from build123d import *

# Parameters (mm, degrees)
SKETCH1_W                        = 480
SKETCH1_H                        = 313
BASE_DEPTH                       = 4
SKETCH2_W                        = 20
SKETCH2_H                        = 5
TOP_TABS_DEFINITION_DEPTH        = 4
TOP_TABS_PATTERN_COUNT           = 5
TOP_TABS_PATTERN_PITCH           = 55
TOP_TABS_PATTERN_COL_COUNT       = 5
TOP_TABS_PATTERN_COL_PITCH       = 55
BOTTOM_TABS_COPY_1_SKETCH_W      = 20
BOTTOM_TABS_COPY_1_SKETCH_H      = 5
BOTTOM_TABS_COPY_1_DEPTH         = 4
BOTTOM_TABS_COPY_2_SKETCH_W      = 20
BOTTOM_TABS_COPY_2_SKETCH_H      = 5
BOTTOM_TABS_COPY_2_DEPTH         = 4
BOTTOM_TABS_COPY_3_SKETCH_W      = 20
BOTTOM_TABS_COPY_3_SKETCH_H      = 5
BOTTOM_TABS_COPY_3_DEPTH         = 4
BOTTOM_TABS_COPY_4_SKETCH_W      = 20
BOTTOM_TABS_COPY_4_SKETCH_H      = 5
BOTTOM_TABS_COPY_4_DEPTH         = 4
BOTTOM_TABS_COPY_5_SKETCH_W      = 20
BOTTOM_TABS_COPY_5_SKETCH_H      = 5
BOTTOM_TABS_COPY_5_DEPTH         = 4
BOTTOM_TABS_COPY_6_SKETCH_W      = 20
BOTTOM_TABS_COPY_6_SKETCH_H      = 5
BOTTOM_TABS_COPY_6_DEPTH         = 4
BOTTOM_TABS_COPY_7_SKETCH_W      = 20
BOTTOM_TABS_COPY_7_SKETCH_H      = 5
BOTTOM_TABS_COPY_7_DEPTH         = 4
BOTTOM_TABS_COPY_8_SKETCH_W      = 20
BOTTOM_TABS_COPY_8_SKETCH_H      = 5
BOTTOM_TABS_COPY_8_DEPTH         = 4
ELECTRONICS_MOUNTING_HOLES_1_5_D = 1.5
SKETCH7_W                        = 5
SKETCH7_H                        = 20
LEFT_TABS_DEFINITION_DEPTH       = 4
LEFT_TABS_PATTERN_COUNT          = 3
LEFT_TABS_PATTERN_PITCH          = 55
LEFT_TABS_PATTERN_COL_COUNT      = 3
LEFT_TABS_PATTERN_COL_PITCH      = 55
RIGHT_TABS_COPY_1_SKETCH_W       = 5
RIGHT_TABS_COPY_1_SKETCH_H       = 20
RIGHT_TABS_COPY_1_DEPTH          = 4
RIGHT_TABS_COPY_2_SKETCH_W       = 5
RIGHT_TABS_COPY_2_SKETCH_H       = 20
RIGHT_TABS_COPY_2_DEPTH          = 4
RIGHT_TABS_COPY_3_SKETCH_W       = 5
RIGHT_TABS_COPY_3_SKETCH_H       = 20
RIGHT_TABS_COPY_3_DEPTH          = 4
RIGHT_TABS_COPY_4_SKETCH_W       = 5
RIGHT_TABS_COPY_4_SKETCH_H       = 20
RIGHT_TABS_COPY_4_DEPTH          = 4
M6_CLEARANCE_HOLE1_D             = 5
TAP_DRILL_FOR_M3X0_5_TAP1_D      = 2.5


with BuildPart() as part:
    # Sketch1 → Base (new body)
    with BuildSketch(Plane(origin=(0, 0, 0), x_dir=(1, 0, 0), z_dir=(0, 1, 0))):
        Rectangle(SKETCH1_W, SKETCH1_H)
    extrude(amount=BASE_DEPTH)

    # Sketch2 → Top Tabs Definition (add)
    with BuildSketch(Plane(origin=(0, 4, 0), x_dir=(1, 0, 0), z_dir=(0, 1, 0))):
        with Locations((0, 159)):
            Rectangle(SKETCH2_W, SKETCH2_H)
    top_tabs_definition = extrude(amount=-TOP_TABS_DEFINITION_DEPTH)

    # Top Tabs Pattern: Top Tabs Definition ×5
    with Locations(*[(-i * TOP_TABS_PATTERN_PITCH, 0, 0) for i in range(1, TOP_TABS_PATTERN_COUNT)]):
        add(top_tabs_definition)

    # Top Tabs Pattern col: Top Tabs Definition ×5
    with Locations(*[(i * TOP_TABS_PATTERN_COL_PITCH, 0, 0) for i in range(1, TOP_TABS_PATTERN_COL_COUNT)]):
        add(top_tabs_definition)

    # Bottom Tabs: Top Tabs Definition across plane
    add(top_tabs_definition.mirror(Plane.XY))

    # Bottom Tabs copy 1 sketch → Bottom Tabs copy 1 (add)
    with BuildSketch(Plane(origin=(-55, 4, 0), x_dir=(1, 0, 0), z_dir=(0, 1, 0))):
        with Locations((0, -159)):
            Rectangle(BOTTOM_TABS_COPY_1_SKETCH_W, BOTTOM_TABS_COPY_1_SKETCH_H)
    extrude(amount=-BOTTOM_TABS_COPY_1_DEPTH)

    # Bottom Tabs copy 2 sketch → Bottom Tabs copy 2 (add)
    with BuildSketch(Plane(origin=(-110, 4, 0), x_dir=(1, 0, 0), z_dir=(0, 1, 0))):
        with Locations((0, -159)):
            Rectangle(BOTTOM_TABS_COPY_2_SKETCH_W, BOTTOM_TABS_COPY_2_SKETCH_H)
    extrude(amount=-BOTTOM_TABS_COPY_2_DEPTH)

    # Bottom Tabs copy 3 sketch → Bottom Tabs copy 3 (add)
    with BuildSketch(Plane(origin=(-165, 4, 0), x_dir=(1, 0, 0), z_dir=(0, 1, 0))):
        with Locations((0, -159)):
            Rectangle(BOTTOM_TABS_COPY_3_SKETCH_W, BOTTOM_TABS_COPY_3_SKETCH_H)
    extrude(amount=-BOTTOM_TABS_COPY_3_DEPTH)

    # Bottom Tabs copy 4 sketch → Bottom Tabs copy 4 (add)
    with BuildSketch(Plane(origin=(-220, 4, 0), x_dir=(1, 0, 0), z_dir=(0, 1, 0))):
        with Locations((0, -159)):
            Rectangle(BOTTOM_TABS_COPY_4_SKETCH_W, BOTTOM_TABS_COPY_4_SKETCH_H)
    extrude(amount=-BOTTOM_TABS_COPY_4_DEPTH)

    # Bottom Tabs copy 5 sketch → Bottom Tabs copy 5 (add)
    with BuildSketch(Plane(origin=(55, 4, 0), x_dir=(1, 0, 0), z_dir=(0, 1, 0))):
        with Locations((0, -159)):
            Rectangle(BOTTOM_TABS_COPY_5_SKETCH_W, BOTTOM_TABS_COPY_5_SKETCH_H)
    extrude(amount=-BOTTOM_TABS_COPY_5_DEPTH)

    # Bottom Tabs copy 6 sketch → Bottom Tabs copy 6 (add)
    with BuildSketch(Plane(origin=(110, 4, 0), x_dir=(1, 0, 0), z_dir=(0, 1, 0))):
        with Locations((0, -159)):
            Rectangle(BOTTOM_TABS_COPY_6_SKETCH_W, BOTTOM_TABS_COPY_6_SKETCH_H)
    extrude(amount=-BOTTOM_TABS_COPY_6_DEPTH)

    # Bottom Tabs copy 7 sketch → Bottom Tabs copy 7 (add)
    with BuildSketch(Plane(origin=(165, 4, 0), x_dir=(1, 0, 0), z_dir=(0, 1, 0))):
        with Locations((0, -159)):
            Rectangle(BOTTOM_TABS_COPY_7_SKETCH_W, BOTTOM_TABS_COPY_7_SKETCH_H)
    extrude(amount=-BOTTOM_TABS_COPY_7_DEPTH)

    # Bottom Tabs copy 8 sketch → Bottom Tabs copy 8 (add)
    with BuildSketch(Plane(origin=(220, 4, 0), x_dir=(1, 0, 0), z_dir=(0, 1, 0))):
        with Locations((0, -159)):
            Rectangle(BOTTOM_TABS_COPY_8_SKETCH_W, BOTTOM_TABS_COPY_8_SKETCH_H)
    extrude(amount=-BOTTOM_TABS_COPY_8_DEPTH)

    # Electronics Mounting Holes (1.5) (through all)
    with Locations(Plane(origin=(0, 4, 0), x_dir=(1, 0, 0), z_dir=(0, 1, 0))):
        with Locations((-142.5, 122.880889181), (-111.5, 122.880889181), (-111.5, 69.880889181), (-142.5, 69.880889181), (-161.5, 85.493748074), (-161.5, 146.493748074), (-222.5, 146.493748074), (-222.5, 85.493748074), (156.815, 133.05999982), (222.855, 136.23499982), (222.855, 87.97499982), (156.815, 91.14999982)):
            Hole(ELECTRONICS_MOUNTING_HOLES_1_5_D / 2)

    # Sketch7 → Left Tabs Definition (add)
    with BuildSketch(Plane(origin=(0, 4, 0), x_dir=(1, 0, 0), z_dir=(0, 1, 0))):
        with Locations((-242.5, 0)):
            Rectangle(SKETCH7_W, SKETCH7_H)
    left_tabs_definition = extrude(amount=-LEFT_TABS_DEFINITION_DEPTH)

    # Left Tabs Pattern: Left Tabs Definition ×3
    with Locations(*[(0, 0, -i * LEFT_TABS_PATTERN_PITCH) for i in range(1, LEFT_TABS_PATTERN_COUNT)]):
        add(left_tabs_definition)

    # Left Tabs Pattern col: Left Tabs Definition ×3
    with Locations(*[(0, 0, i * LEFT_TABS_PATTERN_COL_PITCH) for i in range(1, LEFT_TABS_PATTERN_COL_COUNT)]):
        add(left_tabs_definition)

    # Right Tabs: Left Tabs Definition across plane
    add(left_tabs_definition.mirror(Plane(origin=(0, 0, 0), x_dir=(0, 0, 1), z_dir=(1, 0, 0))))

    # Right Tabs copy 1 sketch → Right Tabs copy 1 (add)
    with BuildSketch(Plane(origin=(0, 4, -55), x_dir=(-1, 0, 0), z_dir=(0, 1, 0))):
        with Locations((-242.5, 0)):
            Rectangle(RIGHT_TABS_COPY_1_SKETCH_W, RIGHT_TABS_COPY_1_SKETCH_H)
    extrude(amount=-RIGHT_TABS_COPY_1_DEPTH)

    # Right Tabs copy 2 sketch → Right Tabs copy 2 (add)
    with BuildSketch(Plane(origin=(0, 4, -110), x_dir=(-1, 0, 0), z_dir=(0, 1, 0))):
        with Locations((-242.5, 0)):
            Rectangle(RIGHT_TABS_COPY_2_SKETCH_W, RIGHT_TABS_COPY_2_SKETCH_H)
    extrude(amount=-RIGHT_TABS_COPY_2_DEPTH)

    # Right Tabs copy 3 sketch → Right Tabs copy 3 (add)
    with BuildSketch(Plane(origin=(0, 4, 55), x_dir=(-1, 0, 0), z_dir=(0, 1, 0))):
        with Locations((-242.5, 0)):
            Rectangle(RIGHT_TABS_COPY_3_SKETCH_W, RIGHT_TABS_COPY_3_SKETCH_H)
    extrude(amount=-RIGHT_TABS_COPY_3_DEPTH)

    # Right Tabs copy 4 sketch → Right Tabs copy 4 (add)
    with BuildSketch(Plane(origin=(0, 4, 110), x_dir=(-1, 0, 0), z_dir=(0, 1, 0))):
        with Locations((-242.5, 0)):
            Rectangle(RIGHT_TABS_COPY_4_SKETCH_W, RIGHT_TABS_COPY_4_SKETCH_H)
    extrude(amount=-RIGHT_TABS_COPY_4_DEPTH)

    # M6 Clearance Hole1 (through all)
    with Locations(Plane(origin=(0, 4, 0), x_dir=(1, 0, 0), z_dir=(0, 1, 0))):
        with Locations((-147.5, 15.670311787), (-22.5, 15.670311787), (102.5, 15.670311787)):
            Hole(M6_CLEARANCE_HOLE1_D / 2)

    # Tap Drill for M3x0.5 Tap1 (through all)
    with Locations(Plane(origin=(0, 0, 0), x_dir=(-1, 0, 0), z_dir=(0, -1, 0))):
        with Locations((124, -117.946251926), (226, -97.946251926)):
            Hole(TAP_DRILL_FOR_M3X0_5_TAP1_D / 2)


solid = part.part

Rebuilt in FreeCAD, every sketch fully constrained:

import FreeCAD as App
import Part
import Sketcher
from FreeCAD import Vector
Q = App.Units.Quantity

doc = App.newDocument("Part")
body = doc.addObject("PartDesign::Body", "Body")

# Sketch on XZ plane
sketch1 = doc.addObject("Sketcher::SketchObject", "Sketch")
body.addObject(sketch1)
sketch1.AttachmentSupport = (doc.XZ_Plane, [""])
sketch1.MapMode = "FlatFace"
sketch1.addGeometry([
    Part.LineSegment(Vector(-240, -156, 0), Vector(-240, 156, 0)),
    Part.LineSegment(Vector(-240, 156, 0), Vector(240, 156, 0)),
    Part.LineSegment(Vector(240, 156, 0), Vector(240, -156, 0)),
    Part.LineSegment(Vector(240, -156, 0), Vector(-240, -156, 0)),
], False)
sketch1.addConstraint([
    Sketcher.Constraint("Coincident", 0, 2, 1, 1),
    Sketcher.Constraint("Coincident", 1, 2, 2, 1),
    Sketcher.Constraint("Coincident", 2, 2, 3, 1),
    Sketcher.Constraint("Coincident", 3, 2, 0, 1),
    Sketcher.Constraint("Vertical", 0),
    Sketcher.Constraint("Horizontal", 1),
    Sketcher.Constraint("Vertical", 2),
    Sketcher.Constraint("Horizontal", 3),
    Sketcher.Constraint("Symmetric", 0, 2, 2, 2, -1, 1),
    Sketcher.Constraint("DistanceX", 1, 1, 1, 2, Q("480 mm")),
    Sketcher.Constraint("DistanceY", 0, 1, 0, 2, Q("313 mm")),
])
pad1 = doc.addObject("PartDesign::Pad", "Pad")
body.addObject(pad1)
pad1.Profile = sketch1
pad1.Length = 4
pad1.Reversed = True

# Sketch on XZ plane
sketch2 = doc.addObject("Sketcher::SketchObject", "Sketch001")
body.addObject(sketch2)
sketch2.AttachmentSupport = (doc.XZ_Plane, [""])
sketch2.MapMode = "FlatFace"
sketch2.AttachmentOffset = App.Placement(Vector(0, 0, -4), App.Rotation())
sketch2.addGeometry([
    Part.LineSegment(Vector(-10, -162, 0), Vector(-10, -156, 0)),
    Part.LineSegment(Vector(-10, -156, 0), Vector(10, -156, 0)),
    Part.LineSegment(Vector(10, -156, 0), Vector(10, -162, 0)),
    Part.LineSegment(Vector(10, -162, 0), Vector(-10, -162, 0)),
], False)
sketch2.addConstraint([
    Sketcher.Constraint("Coincident", 0, 2, 1, 1),
    Sketcher.Constraint("Coincident", 1, 2, 2, 1),
    Sketcher.Constraint("Coincident", 2, 2, 3, 1),
    Sketcher.Constraint("Coincident", 3, 2, 0, 1),
    Sketcher.Constraint("Vertical", 0),
    Sketcher.Constraint("Horizontal", 1),
    Sketcher.Constraint("Vertical", 2),
    Sketcher.Constraint("Horizontal", 3),
    Sketcher.Constraint("DistanceX", 1, 1, 1, 2, Q("20 mm")),
    Sketcher.Constraint("DistanceY", 0, 1, 0, 2, Q("5 mm")),
    Sketcher.Constraint("DistanceX", 0, 2, -1, 1, Q("10 mm")),
    Sketcher.Constraint("DistanceY", 0, 2, -1, 1, Q("156.5 mm")),
])
pad2 = doc.addObject("PartDesign::Pad", "Pad001")
body.addObject(pad2)
pad2.Profile = sketch2
pad2.Length = 4
doc.recompute()

linearpattern = doc.addObject("PartDesign::LinearPattern", "LinearPattern")
body.addObject(linearpattern)
linearpattern.Originals = [pad2]
linearpattern.Direction = (doc.X_Axis, [""])
linearpattern.Mode = "offset"
linearpattern.Offset = 55
linearpattern.Occurrences = 5
linearpattern.Reversed = True
body.Tip = linearpattern
doc.recompute()

linearpattern2 = doc.addObject("PartDesign::LinearPattern", "LinearPattern001")
body.addObject(linearpattern2)
linearpattern2.Originals = [pad2]
linearpattern2.Direction = (doc.X_Axis, [""])
linearpattern2.Mode = "offset"
linearpattern2.Offset = 55
linearpattern2.Occurrences = 5
body.Tip = linearpattern2
doc.recompute()

mirrored = doc.addObject("PartDesign::Mirrored", "Mirrored")
body.addObject(mirrored)
mirrored.Originals = [pad2]
mirrored.MirrorPlane = (doc.XY_Plane, [""])
body.Tip = mirrored

# Sketch on XZ plane
sketch3 = doc.addObject("Sketcher::SketchObject", "Sketch002")
body.addObject(sketch3)
sketch3.AttachmentSupport = (doc.XZ_Plane, [""])
sketch3.MapMode = "FlatFace"
sketch3.AttachmentOffset = App.Placement(Vector(0, 0, -4), App.Rotation())
sketch3.addGeometry([
    Part.LineSegment(Vector(-65, 156, 0), Vector(-65, 162, 0)),
    Part.LineSegment(Vector(-65, 162, 0), Vector(-45, 162, 0)),
    Part.LineSegment(Vector(-45, 162, 0), Vector(-45, 156, 0)),
    Part.LineSegment(Vector(-45, 156, 0), Vector(-65, 156, 0)),
], False)
sketch3.addConstraint([
    Sketcher.Constraint("Coincident", 0, 2, 1, 1),
    Sketcher.Constraint("Coincident", 1, 2, 2, 1),
    Sketcher.Constraint("Coincident", 2, 2, 3, 1),
    Sketcher.Constraint("Coincident", 3, 2, 0, 1),
    Sketcher.Constraint("Vertical", 0),
    Sketcher.Constraint("Horizontal", 1),
    Sketcher.Constraint("Vertical", 2),
    Sketcher.Constraint("Horizontal", 3),
    Sketcher.Constraint("DistanceX", 1, 1, 1, 2, Q("20 mm")),
    Sketcher.Constraint("DistanceY", 0, 1, 0, 2, Q("5 mm")),
    Sketcher.Constraint("DistanceX", 0, 2, -1, 1, Q("65 mm")),
    Sketcher.Constraint("DistanceY", -1, 1, 0, 2, Q("161.5 mm")),
])
pad3 = doc.addObject("PartDesign::Pad", "Pad002")
body.addObject(pad3)
pad3.Profile = sketch3
pad3.Length = 4

# Sketch on XZ plane
sketch4 = doc.addObject("Sketcher::SketchObject", "Sketch003")
body.addObject(sketch4)
sketch4.AttachmentSupport = (doc.XZ_Plane, [""])
sketch4.MapMode = "FlatFace"
sketch4.AttachmentOffset = App.Placement(Vector(0, 0, -4), App.Rotation())
sketch4.addGeometry([
    Part.LineSegment(Vector(-120, 156, 0), Vector(-120, 162, 0)),
    Part.LineSegment(Vector(-120, 162, 0), Vector(-100, 162, 0)),
    Part.LineSegment(Vector(-100, 162, 0), Vector(-100, 156, 0)),
    Part.LineSegment(Vector(-100, 156, 0), Vector(-120, 156, 0)),
], False)
sketch4.addConstraint([
    Sketcher.Constraint("Coincident", 0, 2, 1, 1),
    Sketcher.Constraint("Coincident", 1, 2, 2, 1),
    Sketcher.Constraint("Coincident", 2, 2, 3, 1),
    Sketcher.Constraint("Coincident", 3, 2, 0, 1),
    Sketcher.Constraint("Vertical", 0),
    Sketcher.Constraint("Horizontal", 1),
    Sketcher.Constraint("Vertical", 2),
    Sketcher.Constraint("Horizontal", 3),
    Sketcher.Constraint("DistanceX", 1, 1, 1, 2, Q("20 mm")),
    Sketcher.Constraint("DistanceY", 0, 1, 0, 2, Q("5 mm")),
    Sketcher.Constraint("DistanceX", 0, 2, -1, 1, Q("120 mm")),
    Sketcher.Constraint("DistanceY", -1, 1, 0, 2, Q("161.5 mm")),
])
pad4 = doc.addObject("PartDesign::Pad", "Pad003")
body.addObject(pad4)
pad4.Profile = sketch4
pad4.Length = 4

# Sketch on XZ plane
sketch5 = doc.addObject("Sketcher::SketchObject", "Sketch004")
body.addObject(sketch5)
sketch5.AttachmentSupport = (doc.XZ_Plane, [""])
sketch5.MapMode = "FlatFace"
sketch5.AttachmentOffset = App.Placement(Vector(0, 0, -4), App.Rotation())
sketch5.addGeometry([
    Part.LineSegment(Vector(-175, 156, 0), Vector(-175, 162, 0)),
    Part.LineSegment(Vector(-175, 162, 0), Vector(-155, 162, 0)),
    Part.LineSegment(Vector(-155, 162, 0), Vector(-155, 156, 0)),
    Part.LineSegment(Vector(-155, 156, 0), Vector(-175, 156, 0)),
], False)
sketch5.addConstraint([
    Sketcher.Constraint("Coincident", 0, 2, 1, 1),
    Sketcher.Constraint("Coincident", 1, 2, 2, 1),
    Sketcher.Constraint("Coincident", 2, 2, 3, 1),
    Sketcher.Constraint("Coincident", 3, 2, 0, 1),
    Sketcher.Constraint("Vertical", 0),
    Sketcher.Constraint("Horizontal", 1),
    Sketcher.Constraint("Vertical", 2),
    Sketcher.Constraint("Horizontal", 3),
    Sketcher.Constraint("DistanceX", 1, 1, 1, 2, Q("20 mm")),
    Sketcher.Constraint("DistanceY", 0, 1, 0, 2, Q("5 mm")),
    Sketcher.Constraint("DistanceX", 0, 2, -1, 1, Q("175 mm")),
    Sketcher.Constraint("DistanceY", -1, 1, 0, 2, Q("161.5 mm")),
])
pad5 = doc.addObject("PartDesign::Pad", "Pad004")
body.addObject(pad5)
pad5.Profile = sketch5
pad5.Length = 4

# Sketch on XZ plane
sketch6 = doc.addObject("Sketcher::SketchObject", "Sketch005")
body.addObject(sketch6)
sketch6.AttachmentSupport = (doc.XZ_Plane, [""])
sketch6.MapMode = "FlatFace"
sketch6.AttachmentOffset = App.Placement(Vector(0, 0, -4), App.Rotation())
sketch6.addGeometry([
    Part.LineSegment(Vector(-230, 156, 0), Vector(-230, 162, 0)),
    Part.LineSegment(Vector(-230, 162, 0), Vector(-210, 162, 0)),
    Part.LineSegment(Vector(-210, 162, 0), Vector(-210, 156, 0)),
    Part.LineSegment(Vector(-210, 156, 0), Vector(-230, 156, 0)),
], False)
sketch6.addConstraint([
    Sketcher.Constraint("Coincident", 0, 2, 1, 1),
    Sketcher.Constraint("Coincident", 1, 2, 2, 1),
    Sketcher.Constraint("Coincident", 2, 2, 3, 1),
    Sketcher.Constraint("Coincident", 3, 2, 0, 1),
    Sketcher.Constraint("Vertical", 0),
    Sketcher.Constraint("Horizontal", 1),
    Sketcher.Constraint("Vertical", 2),
    Sketcher.Constraint("Horizontal", 3),
    Sketcher.Constraint("DistanceX", 1, 1, 1, 2, Q("20 mm")),
    Sketcher.Constraint("DistanceY", 0, 1, 0, 2, Q("5 mm")),
    Sketcher.Constraint("DistanceX", 0, 2, -1, 1, Q("230 mm")),
    Sketcher.Constraint("DistanceY", -1, 1, 0, 2, Q("161.5 mm")),
])
pad6 = doc.addObject("PartDesign::Pad", "Pad005")
body.addObject(pad6)
pad6.Profile = sketch6
pad6.Length = 4

# Sketch on XZ plane
sketch7 = doc.addObject("Sketcher::SketchObject", "Sketch006")
body.addObject(sketch7)
sketch7.AttachmentSupport = (doc.XZ_Plane, [""])
sketch7.MapMode = "FlatFace"
sketch7.AttachmentOffset = App.Placement(Vector(0, 0, -4), App.Rotation())
sketch7.addGeometry([
    Part.LineSegment(Vector(45, 156, 0), Vector(45, 162, 0)),
    Part.LineSegment(Vector(45, 162, 0), Vector(65, 162, 0)),
    Part.LineSegment(Vector(65, 162, 0), Vector(65, 156, 0)),
    Part.LineSegment(Vector(65, 156, 0), Vector(45, 156, 0)),
], False)
sketch7.addConstraint([
    Sketcher.Constraint("Coincident", 0, 2, 1, 1),
    Sketcher.Constraint("Coincident", 1, 2, 2, 1),
    Sketcher.Constraint("Coincident", 2, 2, 3, 1),
    Sketcher.Constraint("Coincident", 3, 2, 0, 1),
    Sketcher.Constraint("Vertical", 0),
    Sketcher.Constraint("Horizontal", 1),
    Sketcher.Constraint("Vertical", 2),
    Sketcher.Constraint("Horizontal", 3),
    Sketcher.Constraint("DistanceX", 1, 1, 1, 2, Q("20 mm")),
    Sketcher.Constraint("DistanceY", 0, 1, 0, 2, Q("5 mm")),
    Sketcher.Constraint("DistanceX", -1, 1, 0, 2, Q("45 mm")),
    Sketcher.Constraint("DistanceY", -1, 1, 0, 2, Q("161.5 mm")),
])
pad7 = doc.addObject("PartDesign::Pad", "Pad006")
body.addObject(pad7)
pad7.Profile = sketch7
pad7.Length = 4

# Sketch on XZ plane
sketch8 = doc.addObject("Sketcher::SketchObject", "Sketch007")
body.addObject(sketch8)
sketch8.AttachmentSupport = (doc.XZ_Plane, [""])
sketch8.MapMode = "FlatFace"
sketch8.AttachmentOffset = App.Placement(Vector(0, 0, -4), App.Rotation())
sketch8.addGeometry([
    Part.LineSegment(Vector(100, 156, 0), Vector(100, 162, 0)),
    Part.LineSegment(Vector(100, 162, 0), Vector(120, 162, 0)),
    Part.LineSegment(Vector(120, 162, 0), Vector(120, 156, 0)),
    Part.LineSegment(Vector(120, 156, 0), Vector(100, 156, 0)),
], False)
sketch8.addConstraint([
    Sketcher.Constraint("Coincident", 0, 2, 1, 1),
    Sketcher.Constraint("Coincident", 1, 2, 2, 1),
    Sketcher.Constraint("Coincident", 2, 2, 3, 1),
    Sketcher.Constraint("Coincident", 3, 2, 0, 1),
    Sketcher.Constraint("Vertical", 0),
    Sketcher.Constraint("Horizontal", 1),
    Sketcher.Constraint("Vertical", 2),
    Sketcher.Constraint("Horizontal", 3),
    Sketcher.Constraint("DistanceX", 1, 1, 1, 2, Q("20 mm")),
    Sketcher.Constraint("DistanceY", 0, 1, 0, 2, Q("5 mm")),
    Sketcher.Constraint("DistanceX", -1, 1, 0, 2, Q("100 mm")),
    Sketcher.Constraint("DistanceY", -1, 1, 0, 2, Q("161.5 mm")),
])
pad8 = doc.addObject("PartDesign::Pad", "Pad007")
body.addObject(pad8)
pad8.Profile = sketch8
pad8.Length = 4

# Sketch on XZ plane
sketch9 = doc.addObject("Sketcher::SketchObject", "Sketch008")
body.addObject(sketch9)
sketch9.AttachmentSupport = (doc.XZ_Plane, [""])
sketch9.MapMode = "FlatFace"
sketch9.AttachmentOffset = App.Placement(Vector(0, 0, -4), App.Rotation())
sketch9.addGeometry([
    Part.LineSegment(Vector(155, 156, 0), Vector(155, 162, 0)),
    Part.LineSegment(Vector(155, 162, 0), Vector(175, 162, 0)),
    Part.LineSegment(Vector(175, 162, 0), Vector(175, 156, 0)),
    Part.LineSegment(Vector(175, 156, 0), Vector(155, 156, 0)),
], False)
sketch9.addConstraint([
    Sketcher.Constraint("Coincident", 0, 2, 1, 1),
    Sketcher.Constraint("Coincident", 1, 2, 2, 1),
    Sketcher.Constraint("Coincident", 2, 2, 3, 1),
    Sketcher.Constraint("Coincident", 3, 2, 0, 1),
    Sketcher.Constraint("Vertical", 0),
    Sketcher.Constraint("Horizontal", 1),
    Sketcher.Constraint("Vertical", 2),
    Sketcher.Constraint("Horizontal", 3),
    Sketcher.Constraint("DistanceX", 1, 1, 1, 2, Q("20 mm")),
    Sketcher.Constraint("DistanceY", 0, 1, 0, 2, Q("5 mm")),
    Sketcher.Constraint("DistanceX", -1, 1, 0, 2, Q("155 mm")),
    Sketcher.Constraint("DistanceY", -1, 1, 0, 2, Q("161.5 mm")),
])
pad9 = doc.addObject("PartDesign::Pad", "Pad008")
body.addObject(pad9)
pad9.Profile = sketch9
pad9.Length = 4

# Sketch on XZ plane
sketch10 = doc.addObject("Sketcher::SketchObject", "Sketch009")
body.addObject(sketch10)
sketch10.AttachmentSupport = (doc.XZ_Plane, [""])
sketch10.MapMode = "FlatFace"
sketch10.AttachmentOffset = App.Placement(Vector(0, 0, -4), App.Rotation())
sketch10.addGeometry([
    Part.LineSegment(Vector(210, 156, 0), Vector(210, 162, 0)),
    Part.LineSegment(Vector(210, 162, 0), Vector(230, 162, 0)),
    Part.LineSegment(Vector(230, 162, 0), Vector(230, 156, 0)),
    Part.LineSegment(Vector(230, 156, 0), Vector(210, 156, 0)),
], False)
sketch10.addConstraint([
    Sketcher.Constraint("Coincident", 0, 2, 1, 1),
    Sketcher.Constraint("Coincident", 1, 2, 2, 1),
    Sketcher.Constraint("Coincident", 2, 2, 3, 1),
    Sketcher.Constraint("Coincident", 3, 2, 0, 1),
    Sketcher.Constraint("Vertical", 0),
    Sketcher.Constraint("Horizontal", 1),
    Sketcher.Constraint("Vertical", 2),
    Sketcher.Constraint("Horizontal", 3),
    Sketcher.Constraint("DistanceX", 1, 1, 1, 2, Q("20 mm")),
    Sketcher.Constraint("DistanceY", 0, 1, 0, 2, Q("5 mm")),
    Sketcher.Constraint("DistanceX", -1, 1, 0, 2, Q("210 mm")),
    Sketcher.Constraint("DistanceY", -1, 1, 0, 2, Q("161.5 mm")),
])
pad10 = doc.addObject("PartDesign::Pad", "Pad009")
body.addObject(pad10)
pad10.Profile = sketch10
pad10.Length = 4

# Sketch on XZ plane
sketch11 = doc.addObject("Sketcher::SketchObject", "Sketch010")
body.addObject(sketch11)
sketch11.AttachmentSupport = (doc.XZ_Plane, [""])
sketch11.MapMode = "FlatFace"
sketch11.AttachmentOffset = App.Placement(Vector(0, 0, -4), App.Rotation())
sketch11.addGeometry([
    Part.Circle(Vector(-142.5, -122.9, 0), Vector(0, 0, 1), 0.8),  # 0
    Part.Circle(Vector(-111.5, -122.9, 0), Vector(0, 0, 1), 0.8),  # 1
    Part.Circle(Vector(-111.5, -69.9, 0), Vector(0, 0, 1), 0.8),  # 2
    Part.Circle(Vector(-142.5, -69.9, 0), Vector(0, 0, 1), 0.8),  # 3
    Part.Circle(Vector(-161.5, -85.5, 0), Vector(0, 0, 1), 0.8),  # 4
    Part.Circle(Vector(-161.5, -146.5, 0), Vector(0, 0, 1), 0.8),  # 5
    Part.Circle(Vector(-222.5, -146.5, 0), Vector(0, 0, 1), 0.8),  # 6
    Part.Circle(Vector(-222.5, -85.5, 0), Vector(0, 0, 1), 0.8),  # 7
    Part.Circle(Vector(156.8, -133.1, 0), Vector(0, 0, 1), 0.8),  # 8
    Part.Circle(Vector(222.9, -136.2, 0), Vector(0, 0, 1), 0.8),  # 9
    Part.Circle(Vector(222.9, -88, 0), Vector(0, 0, 1), 0.8),  # 10
    Part.Circle(Vector(156.8, -91.1, 0), Vector(0, 0, 1), 0.8),  # 11
], False)
sketch11.addConstraint([
    Sketcher.Constraint("Equal", 0, 1),
    Sketcher.Constraint("Equal", 1, 2),
    Sketcher.Constraint("Equal", 2, 3),
    Sketcher.Constraint("Equal", 3, 4),
    Sketcher.Constraint("Equal", 4, 5),
    Sketcher.Constraint("Equal", 5, 6),
    Sketcher.Constraint("Equal", 6, 7),
    Sketcher.Constraint("Equal", 7, 8),
    Sketcher.Constraint("Equal", 8, 9),
    Sketcher.Constraint("Equal", 9, 10),
    Sketcher.Constraint("Equal", 10, 11),
    Sketcher.Constraint("Horizontal", 0, 3, 1, 3),
    Sketcher.Constraint("Horizontal", 2, 3, 3, 3),
    Sketcher.Constraint("Horizontal", 5, 3, 6, 3),
    Sketcher.Constraint("Horizontal", 4, 3, 7, 3),
    Sketcher.Constraint("Vertical", 1, 3, 2, 3),
    Sketcher.Constraint("Vertical", 0, 3, 3, 3),
    Sketcher.Constraint("Vertical", 4, 3, 5, 3),
    Sketcher.Constraint("Vertical", 6, 3, 7, 3),
    Sketcher.Constraint("Vertical", 9, 3, 10, 3),
    Sketcher.Constraint("Vertical", 8, 3, 11, 3),
    Sketcher.Constraint("Diameter", 0, Q("1.5 mm")),
    Sketcher.Constraint("DistanceX", 0, 3, 1, 3, Q("31 mm")),
    Sketcher.Constraint("DistanceY", 1, 3, 2, 3, Q("53 mm")),
    Sketcher.Constraint("DistanceX", 4, 3, 3, 3, Q("19 mm")),
    Sketcher.Constraint("DistanceY", 5, 3, 4, 3, Q("61 mm")),
    Sketcher.Constraint("DistanceX", 6, 3, 5, 3, Q("61 mm")),
    Sketcher.Constraint("DistanceX", 0, 3, -1, 1, Q("142.5 mm")),
    Sketcher.Constraint("DistanceY", 8, 3, -1, 1, Q("133.06 mm")),
    Sketcher.Constraint("DistanceY", 11, 3, -1, 1, Q("91.15 mm")),
    Sketcher.Constraint("DistanceX", 8, 3, 9, 3, Q("66.04 mm")),
    Sketcher.Constraint("DistanceY", 9, 3, 10, 3, Q("48.26 mm")),
    Sketcher.Constraint("DistanceX", -1, 1, 8, 3, Q("156.815 mm")),
    Sketcher.Constraint("DistanceY", 9, 3, -1, 1, Q("136.235 mm")),
    Sketcher.Constraint("DistanceY", 0, 3, -1, 1, Q("122.880889 mm")),
    Sketcher.Constraint("DistanceY", 4, 3, -1, 1, Q("85.493748 mm")),
])
doc.recompute()
hole = doc.addObject("PartDesign::Hole", "Hole")
body.addObject(hole)
hole.Profile = sketch11
hole.ThreadType = "None"
hole.Diameter = 1.5
hole.DepthType = "ThroughAll"
hole.Reversed = True

# Sketch on XZ plane
sketch12 = doc.addObject("Sketcher::SketchObject", "Sketch011")
body.addObject(sketch12)
sketch12.AttachmentSupport = (doc.XZ_Plane, [""])
sketch12.MapMode = "FlatFace"
sketch12.AttachmentOffset = App.Placement(Vector(0, 0, -4), App.Rotation())
sketch12.addGeometry([
    Part.LineSegment(Vector(-245, -10, 0), Vector(-245, 10, 0)),
    Part.LineSegment(Vector(-245, 10, 0), Vector(-240, 10, 0)),
    Part.LineSegment(Vector(-240, 10, 0), Vector(-240, -10, 0)),
    Part.LineSegment(Vector(-240, -10, 0), Vector(-245, -10, 0)),
], False)
sketch12.addConstraint([
    Sketcher.Constraint("Coincident", 0, 2, 1, 1),
    Sketcher.Constraint("Coincident", 1, 2, 2, 1),
    Sketcher.Constraint("Coincident", 2, 2, 3, 1),
    Sketcher.Constraint("Coincident", 3, 2, 0, 1),
    Sketcher.Constraint("Vertical", 0),
    Sketcher.Constraint("Horizontal", 1),
    Sketcher.Constraint("Vertical", 2),
    Sketcher.Constraint("Horizontal", 3),
    Sketcher.Constraint("DistanceX", 1, 1, 1, 2, Q("5 mm")),
    Sketcher.Constraint("DistanceY", 0, 1, 0, 2, Q("20 mm")),
    Sketcher.Constraint("DistanceX", 0, 2, -1, 1, Q("245 mm")),
    Sketcher.Constraint("DistanceY", -1, 1, 0, 2, Q("10 mm")),
])
pad11 = doc.addObject("PartDesign::Pad", "Pad010")
body.addObject(pad11)
pad11.Profile = sketch12
pad11.Length = 4
doc.recompute()

linearpattern3 = doc.addObject("PartDesign::LinearPattern", "LinearPattern002")
body.addObject(linearpattern3)
linearpattern3.Originals = [pad11]
linearpattern3.Direction = (doc.Z_Axis, [""])
linearpattern3.Mode = "offset"
linearpattern3.Offset = 55
linearpattern3.Occurrences = 3
linearpattern3.Reversed = True
body.Tip = linearpattern3
doc.recompute()

linearpattern4 = doc.addObject("PartDesign::LinearPattern", "LinearPattern003")
body.addObject(linearpattern4)
linearpattern4.Originals = [pad11]
linearpattern4.Direction = (doc.Z_Axis, [""])
linearpattern4.Mode = "offset"
linearpattern4.Offset = 55
linearpattern4.Occurrences = 3
body.Tip = linearpattern4
doc.recompute()

mirrored2 = doc.addObject("PartDesign::Mirrored", "Mirrored001")
body.addObject(mirrored2)
mirrored2.Originals = [pad11]
mirrored2.MirrorPlane = (doc.YZ_Plane, [""])
body.Tip = mirrored2

# Sketch on XZ plane
sketch13 = doc.addObject("Sketcher::SketchObject", "Sketch012")
body.addObject(sketch13)
sketch13.AttachmentSupport = (doc.XZ_Plane, [""])
sketch13.MapMode = "FlatFace"
sketch13.AttachmentOffset = App.Placement(Vector(0, 0, -4), App.Rotation())
sketch13.addGeometry([
    Part.LineSegment(Vector(245, -45, 0), Vector(245, -65, 0)),
    Part.LineSegment(Vector(245, -65, 0), Vector(240, -65, 0)),
    Part.LineSegment(Vector(240, -65, 0), Vector(240, -45, 0)),
    Part.LineSegment(Vector(240, -45, 0), Vector(245, -45, 0)),
], False)
sketch13.addConstraint([
    Sketcher.Constraint("Coincident", 0, 2, 1, 1),
    Sketcher.Constraint("Coincident", 1, 2, 2, 1),
    Sketcher.Constraint("Coincident", 2, 2, 3, 1),
    Sketcher.Constraint("Coincident", 3, 2, 0, 1),
    Sketcher.Constraint("Vertical", 0),
    Sketcher.Constraint("Horizontal", 1),
    Sketcher.Constraint("Vertical", 2),
    Sketcher.Constraint("Horizontal", 3),
    Sketcher.Constraint("DistanceX", 1, 2, 1, 1, Q("5 mm")),
    Sketcher.Constraint("DistanceY", 0, 2, 0, 1, Q("20 mm")),
    Sketcher.Constraint("DistanceX", -1, 1, 0, 2, Q("245 mm")),
    Sketcher.Constraint("DistanceY", 0, 2, -1, 1, Q("65 mm")),
])
pad12 = doc.addObject("PartDesign::Pad", "Pad011")
body.addObject(pad12)
pad12.Profile = sketch13
pad12.Length = 4

# Sketch on XZ plane
sketch14 = doc.addObject("Sketcher::SketchObject", "Sketch013")
body.addObject(sketch14)
sketch14.AttachmentSupport = (doc.XZ_Plane, [""])
sketch14.MapMode = "FlatFace"
sketch14.AttachmentOffset = App.Placement(Vector(0, 0, -4), App.Rotation())
sketch14.addGeometry([
    Part.LineSegment(Vector(245, -100, 0), Vector(245, -120, 0)),
    Part.LineSegment(Vector(245, -120, 0), Vector(240, -120, 0)),
    Part.LineSegment(Vector(240, -120, 0), Vector(240, -100, 0)),
    Part.LineSegment(Vector(240, -100, 0), Vector(245, -100, 0)),
], False)
sketch14.addConstraint([
    Sketcher.Constraint("Coincident", 0, 2, 1, 1),
    Sketcher.Constraint("Coincident", 1, 2, 2, 1),
    Sketcher.Constraint("Coincident", 2, 2, 3, 1),
    Sketcher.Constraint("Coincident", 3, 2, 0, 1),
    Sketcher.Constraint("Vertical", 0),
    Sketcher.Constraint("Horizontal", 1),
    Sketcher.Constraint("Vertical", 2),
    Sketcher.Constraint("Horizontal", 3),
    Sketcher.Constraint("DistanceX", 1, 2, 1, 1, Q("5 mm")),
    Sketcher.Constraint("DistanceY", 0, 2, 0, 1, Q("20 mm")),
    Sketcher.Constraint("DistanceX", -1, 1, 0, 2, Q("245 mm")),
    Sketcher.Constraint("DistanceY", 0, 2, -1, 1, Q("120 mm")),
])
pad13 = doc.addObject("PartDesign::Pad", "Pad012")
body.addObject(pad13)
pad13.Profile = sketch14
pad13.Length = 4

# Sketch on XZ plane
sketch15 = doc.addObject("Sketcher::SketchObject", "Sketch014")
body.addObject(sketch15)
sketch15.AttachmentSupport = (doc.XZ_Plane, [""])
sketch15.MapMode = "FlatFace"
sketch15.AttachmentOffset = App.Placement(Vector(0, 0, -4), App.Rotation())
sketch15.addGeometry([
    Part.LineSegment(Vector(245, 65, 0), Vector(245, 45, 0)),
    Part.LineSegment(Vector(245, 45, 0), Vector(240, 45, 0)),
    Part.LineSegment(Vector(240, 45, 0), Vector(240, 65, 0)),
    Part.LineSegment(Vector(240, 65, 0), Vector(245, 65, 0)),
], False)
sketch15.addConstraint([
    Sketcher.Constraint("Coincident", 0, 2, 1, 1),
    Sketcher.Constraint("Coincident", 1, 2, 2, 1),
    Sketcher.Constraint("Coincident", 2, 2, 3, 1),
    Sketcher.Constraint("Coincident", 3, 2, 0, 1),
    Sketcher.Constraint("Vertical", 0),
    Sketcher.Constraint("Horizontal", 1),
    Sketcher.Constraint("Vertical", 2),
    Sketcher.Constraint("Horizontal", 3),
    Sketcher.Constraint("DistanceX", 1, 2, 1, 1, Q("5 mm")),
    Sketcher.Constraint("DistanceY", 0, 2, 0, 1, Q("20 mm")),
    Sketcher.Constraint("DistanceX", -1, 1, 0, 2, Q("245 mm")),
    Sketcher.Constraint("DistanceY", -1, 1, 0, 2, Q("45 mm")),
])
pad14 = doc.addObject("PartDesign::Pad", "Pad013")
body.addObject(pad14)
pad14.Profile = sketch15
pad14.Length = 4

# Sketch on XZ plane
sketch16 = doc.addObject("Sketcher::SketchObject", "Sketch015")
body.addObject(sketch16)
sketch16.AttachmentSupport = (doc.XZ_Plane, [""])
sketch16.MapMode = "FlatFace"
sketch16.AttachmentOffset = App.Placement(Vector(0, 0, -4), App.Rotation())
sketch16.addGeometry([
    Part.LineSegment(Vector(245, 120, 0), Vector(245, 100, 0)),
    Part.LineSegment(Vector(245, 100, 0), Vector(240, 100, 0)),
    Part.LineSegment(Vector(240, 100, 0), Vector(240, 120, 0)),
    Part.LineSegment(Vector(240, 120, 0), Vector(245, 120, 0)),
], False)
sketch16.addConstraint([
    Sketcher.Constraint("Coincident", 0, 2, 1, 1),
    Sketcher.Constraint("Coincident", 1, 2, 2, 1),
    Sketcher.Constraint("Coincident", 2, 2, 3, 1),
    Sketcher.Constraint("Coincident", 3, 2, 0, 1),
    Sketcher.Constraint("Vertical", 0),
    Sketcher.Constraint("Horizontal", 1),
    Sketcher.Constraint("Vertical", 2),
    Sketcher.Constraint("Horizontal", 3),
    Sketcher.Constraint("DistanceX", 1, 2, 1, 1, Q("5 mm")),
    Sketcher.Constraint("DistanceY", 0, 2, 0, 1, Q("20 mm")),
    Sketcher.Constraint("DistanceX", -1, 1, 0, 2, Q("245 mm")),
    Sketcher.Constraint("DistanceY", -1, 1, 0, 2, Q("100 mm")),
])
pad15 = doc.addObject("PartDesign::Pad", "Pad014")
body.addObject(pad15)
pad15.Profile = sketch16
pad15.Length = 4

# Sketch on XZ plane
sketch17 = doc.addObject("Sketcher::SketchObject", "Sketch016")
body.addObject(sketch17)
sketch17.AttachmentSupport = (doc.XZ_Plane, [""])
sketch17.MapMode = "FlatFace"
sketch17.AttachmentOffset = App.Placement(Vector(0, 0, -4), App.Rotation())
sketch17.addGeometry([
    Part.Circle(Vector(-147.5, -15.7, 0), Vector(0, 0, 1), 2.5),
    Part.Circle(Vector(-22.5, -15.7, 0), Vector(0, 0, 1), 2.5),
    Part.Circle(Vector(102.5, -15.7, 0), Vector(0, 0, 1), 2.5),
], False)
sketch17.addConstraint([
    Sketcher.Constraint("Equal", 0, 1),
    Sketcher.Constraint("Equal", 1, 2),
    Sketcher.Constraint("Horizontal", 0, 3, 1, 3),
    Sketcher.Constraint("Horizontal", 1, 3, 2, 3),
    Sketcher.Constraint("Diameter", 0, Q("5 mm")),
    Sketcher.Constraint("DistanceX", 0, 3, 1, 3, Q("125 mm")),
    Sketcher.Constraint("DistanceX", 1, 3, 2, 3, Q("125 mm")),
    Sketcher.Constraint("DistanceX", 0, 3, -1, 1, Q("147.5 mm")),
    Sketcher.Constraint("DistanceY", 0, 3, -1, 1, Q("15.670312 mm")),
])
doc.recompute()
hole2 = doc.addObject("PartDesign::Hole", "Hole001")
body.addObject(hole2)
hole2.Profile = sketch17
hole2.ThreadType = "None"
hole2.Diameter = 5
hole2.DepthType = "ThroughAll"
hole2.Reversed = True

# Sketch on XZ plane
sketch18 = doc.addObject("Sketcher::SketchObject", "Sketch017")
body.addObject(sketch18)
sketch18.AttachmentSupport = (doc.XZ_Plane, [""])
sketch18.MapMode = "FlatFace"
sketch18.addGeometry([
    Part.Circle(Vector(-124, 117.9, 0), Vector(0, 0, 1), 1.2),
    Part.Circle(Vector(-226, 97.9, 0), Vector(0, 0, 1), 1.2),
], False)
sketch18.addConstraint([
    Sketcher.Constraint("Equal", 0, 1),
    Sketcher.Constraint("Diameter", 0, Q("2.5 mm")),
    Sketcher.Constraint("DistanceX", 0, 3, -1, 1, Q("124 mm")),
    Sketcher.Constraint("DistanceX", 1, 3, -1, 1, Q("226 mm")),
    Sketcher.Constraint("DistanceY", 1, 3, 0, 3, Q("20 mm")),
    Sketcher.Constraint("DistanceY", -1, 1, 0, 3, Q("117.946252 mm")),
])
doc.recompute()
hole3 = doc.addObject("PartDesign::Hole", "Hole002")
body.addObject(hole3)
hole3.Profile = sketch18
hole3.ThreadType = "None"
hole3.Diameter = 2.5
hole3.DepthType = "ThroughAll"

doc.recompute()
